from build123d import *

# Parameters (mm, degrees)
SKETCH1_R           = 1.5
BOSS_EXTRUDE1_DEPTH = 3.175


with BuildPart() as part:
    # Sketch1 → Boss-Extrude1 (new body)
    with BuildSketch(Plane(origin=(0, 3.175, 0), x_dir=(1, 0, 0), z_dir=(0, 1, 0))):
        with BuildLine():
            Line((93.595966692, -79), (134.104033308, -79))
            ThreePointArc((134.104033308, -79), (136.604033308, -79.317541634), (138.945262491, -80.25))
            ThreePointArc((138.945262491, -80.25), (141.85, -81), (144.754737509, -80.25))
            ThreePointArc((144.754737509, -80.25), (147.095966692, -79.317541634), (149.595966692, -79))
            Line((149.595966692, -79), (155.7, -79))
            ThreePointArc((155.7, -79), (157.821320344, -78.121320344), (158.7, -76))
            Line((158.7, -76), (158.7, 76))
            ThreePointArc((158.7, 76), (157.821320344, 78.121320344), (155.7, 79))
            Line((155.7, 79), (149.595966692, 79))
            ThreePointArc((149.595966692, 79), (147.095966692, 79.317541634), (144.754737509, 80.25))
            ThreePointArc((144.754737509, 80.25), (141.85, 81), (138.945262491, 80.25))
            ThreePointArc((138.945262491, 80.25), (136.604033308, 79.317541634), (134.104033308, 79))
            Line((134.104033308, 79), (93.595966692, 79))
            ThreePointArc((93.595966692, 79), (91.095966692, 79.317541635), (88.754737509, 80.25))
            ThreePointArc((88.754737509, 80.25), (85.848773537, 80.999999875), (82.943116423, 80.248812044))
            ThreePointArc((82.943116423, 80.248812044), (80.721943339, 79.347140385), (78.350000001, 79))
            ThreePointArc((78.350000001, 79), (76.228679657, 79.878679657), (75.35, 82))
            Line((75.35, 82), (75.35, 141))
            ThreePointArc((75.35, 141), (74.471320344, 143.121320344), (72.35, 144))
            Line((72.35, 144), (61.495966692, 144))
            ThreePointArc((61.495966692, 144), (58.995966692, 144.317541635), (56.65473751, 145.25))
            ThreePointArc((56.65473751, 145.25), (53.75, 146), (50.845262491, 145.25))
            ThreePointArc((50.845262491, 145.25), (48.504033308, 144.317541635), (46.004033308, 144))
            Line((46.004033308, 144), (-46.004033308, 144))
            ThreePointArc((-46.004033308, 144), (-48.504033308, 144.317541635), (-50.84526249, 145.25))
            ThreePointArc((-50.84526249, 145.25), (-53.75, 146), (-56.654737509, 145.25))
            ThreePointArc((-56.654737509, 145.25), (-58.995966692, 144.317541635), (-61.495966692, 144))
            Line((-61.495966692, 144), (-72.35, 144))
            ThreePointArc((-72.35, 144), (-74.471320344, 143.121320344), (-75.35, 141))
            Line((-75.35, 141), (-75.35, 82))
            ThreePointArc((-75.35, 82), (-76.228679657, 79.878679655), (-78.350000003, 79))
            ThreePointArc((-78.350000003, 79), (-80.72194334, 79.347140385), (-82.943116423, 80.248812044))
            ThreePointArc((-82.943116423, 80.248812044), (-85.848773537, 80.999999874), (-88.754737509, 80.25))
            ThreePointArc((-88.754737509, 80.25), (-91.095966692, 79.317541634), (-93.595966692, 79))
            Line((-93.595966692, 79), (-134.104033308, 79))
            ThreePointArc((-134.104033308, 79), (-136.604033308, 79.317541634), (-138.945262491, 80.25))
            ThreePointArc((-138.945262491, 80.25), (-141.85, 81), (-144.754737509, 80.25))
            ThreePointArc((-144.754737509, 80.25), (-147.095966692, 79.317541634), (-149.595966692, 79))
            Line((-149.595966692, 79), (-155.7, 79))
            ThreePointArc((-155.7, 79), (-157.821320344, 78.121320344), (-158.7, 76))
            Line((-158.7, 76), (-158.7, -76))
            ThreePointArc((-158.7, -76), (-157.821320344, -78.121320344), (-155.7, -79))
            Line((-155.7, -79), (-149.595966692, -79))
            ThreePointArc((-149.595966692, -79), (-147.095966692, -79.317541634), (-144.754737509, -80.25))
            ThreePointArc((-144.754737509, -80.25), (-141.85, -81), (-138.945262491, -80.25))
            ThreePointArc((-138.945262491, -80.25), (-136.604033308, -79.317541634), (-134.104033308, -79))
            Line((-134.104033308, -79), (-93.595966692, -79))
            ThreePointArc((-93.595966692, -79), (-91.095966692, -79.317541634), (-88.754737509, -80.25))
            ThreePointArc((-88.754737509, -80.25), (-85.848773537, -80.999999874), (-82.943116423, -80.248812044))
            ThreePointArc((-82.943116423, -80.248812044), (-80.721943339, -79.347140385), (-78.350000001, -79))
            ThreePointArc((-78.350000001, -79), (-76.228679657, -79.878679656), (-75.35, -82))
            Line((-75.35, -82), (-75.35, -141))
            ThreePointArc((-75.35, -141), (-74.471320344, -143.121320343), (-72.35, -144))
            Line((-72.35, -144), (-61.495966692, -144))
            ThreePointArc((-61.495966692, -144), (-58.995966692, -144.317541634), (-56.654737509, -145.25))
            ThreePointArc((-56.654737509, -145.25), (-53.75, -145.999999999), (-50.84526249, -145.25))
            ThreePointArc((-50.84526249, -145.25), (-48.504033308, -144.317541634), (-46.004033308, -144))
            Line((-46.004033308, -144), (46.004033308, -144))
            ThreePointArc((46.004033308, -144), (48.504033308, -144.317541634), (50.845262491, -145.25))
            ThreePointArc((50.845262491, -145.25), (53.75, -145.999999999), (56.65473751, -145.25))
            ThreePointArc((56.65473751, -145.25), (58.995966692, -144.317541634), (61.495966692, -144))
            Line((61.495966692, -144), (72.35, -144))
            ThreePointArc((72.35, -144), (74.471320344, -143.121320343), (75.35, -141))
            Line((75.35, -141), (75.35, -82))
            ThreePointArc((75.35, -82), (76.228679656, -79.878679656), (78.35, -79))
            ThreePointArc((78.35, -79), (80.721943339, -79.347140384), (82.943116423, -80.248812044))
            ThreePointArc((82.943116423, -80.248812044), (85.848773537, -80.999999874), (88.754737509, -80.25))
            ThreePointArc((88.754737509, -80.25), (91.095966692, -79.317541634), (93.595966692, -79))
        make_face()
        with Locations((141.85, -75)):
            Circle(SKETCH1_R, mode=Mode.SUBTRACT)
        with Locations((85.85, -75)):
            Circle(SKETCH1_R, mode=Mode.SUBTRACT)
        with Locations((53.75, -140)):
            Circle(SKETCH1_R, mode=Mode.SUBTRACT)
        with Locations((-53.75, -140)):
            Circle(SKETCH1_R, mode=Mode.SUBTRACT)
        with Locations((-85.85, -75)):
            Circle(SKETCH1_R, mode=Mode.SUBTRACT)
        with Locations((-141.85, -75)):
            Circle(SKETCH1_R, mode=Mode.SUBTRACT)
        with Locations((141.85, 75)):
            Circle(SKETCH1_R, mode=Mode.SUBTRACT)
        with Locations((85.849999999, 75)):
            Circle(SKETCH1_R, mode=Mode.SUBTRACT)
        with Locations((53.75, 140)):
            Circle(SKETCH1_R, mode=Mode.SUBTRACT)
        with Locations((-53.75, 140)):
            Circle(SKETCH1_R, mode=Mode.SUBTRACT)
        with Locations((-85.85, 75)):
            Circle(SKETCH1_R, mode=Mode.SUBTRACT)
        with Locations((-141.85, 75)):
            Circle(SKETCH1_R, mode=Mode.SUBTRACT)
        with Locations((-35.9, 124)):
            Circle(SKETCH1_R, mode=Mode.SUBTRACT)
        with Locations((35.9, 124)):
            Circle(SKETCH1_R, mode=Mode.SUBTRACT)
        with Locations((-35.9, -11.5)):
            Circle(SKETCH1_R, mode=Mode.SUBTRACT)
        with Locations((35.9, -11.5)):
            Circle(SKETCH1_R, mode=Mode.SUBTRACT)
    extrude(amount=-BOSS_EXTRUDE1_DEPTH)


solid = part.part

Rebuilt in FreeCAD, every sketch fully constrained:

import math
import FreeCAD as App
import Part
import Sketcher

doc = App.newDocument("Part")
body = doc.addObject("PartDesign::Body", "Body")

# Sketch on XZ plane
sketch1 = body.newObject("Sketcher::SketchObject", "Sketch")
sketch1.AttachmentSupport = (doc.getObject("XZ_Plane"), [""])
sketch1.MapMode = "FlatFace"
sketch1.AttachmentOffset = App.Placement(App.Vector(0, 0, -3.175), App.Rotation())
sketch1.addGeometry([
    Part.LineSegment(App.Vector(93.6, 79, 0), App.Vector(134.1, 79, 0)),  # 0
    Part.ArcOfCircle(Part.Circle(App.Vector(134.1, 89, 0), App.Vector(0, 0, 1), 10), math.radians(-90), math.radians(-61)),  # 1
    Part.ArcOfCircle(Part.Circle(App.Vector(141.8, 75, 0), App.Vector(0, 0, 1), 6), math.radians(61), math.radians(119)),  # 2
    Part.ArcOfCircle(Part.Circle(App.Vector(149.6, 89, 0), App.Vector(0, 0, 1), 10), math.radians(-119), math.radians(-90)),  # 3
    Part.LineSegment(App.Vector(149.6, 79, 0), App.Vector(155.7, 79, 0)),  # 4
    Part.ArcOfCircle(Part.Circle(App.Vector(155.7, 76, 0), App.Vector(0, 0, 1), 3), math.radians(0), math.radians(90)),  # 5
    Part.LineSegment(App.Vector(158.7, 76, 0), App.Vector(158.7, -76, 0)),  # 6
    Part.ArcOfCircle(Part.Circle(App.Vector(155.7, -76, 0), App.Vector(0, 0, 1), 3), math.radians(-90), math.radians(0)),  # 7
    Part.LineSegment(App.Vector(155.7, -79, 0), App.Vector(149.6, -79, 0)),  # 8
    Part.ArcOfCircle(Part.Circle(App.Vector(149.6, -89, 0), App.Vector(0, 0, 1), 10), math.radians(90), math.radians(119)),  # 9
    Part.ArcOfCircle(Part.Circle(App.Vector(141.8, -75, 0), App.Vector(0, 0, 1), 6), math.radians(-119), math.radians(-61)),  # 10
    Part.ArcOfCircle(Part.Circle(App.Vector(134.1, -89, 0), App.Vector(0, 0, 1), 10), math.radians(61), math.radians(90)),  # 11
    Part.LineSegment(App.Vector(134.1, -79, 0), App.Vector(93.6, -79, 0)),  # 12
    Part.ArcOfCircle(Part.Circle(App.Vector(93.6, -89, 0), App.Vector(0, 0, 1), 10), math.radians(90), math.radians(119)),  # 13
    Part.ArcOfCircle(Part.Circle(App.Vector(85.8, -75, 0), App.Vector(0, 0, 1), 6), math.radians(-119), math.radians(-61)),  # 14
    Part.ArcOfCircle(Part.Circle(App.Vector(78.1, -89, 0), App.Vector(0, 0, 1), 10), math.radians(61), math.radians(89)),  # 15
    Part.ArcOfCircle(Part.Circle(App.Vector(78.4, -82, 0), App.Vector(0, 0, 1), 3), math.radians(90), math.radians(180)),  # 16
    Part.LineSegment(App.Vector(75.3, -82, 0), App.Vector(75.3, -141, 0)),  # 17
    Part.ArcOfCircle(Part.Circle(App.Vector(72.4, -141, 0), App.Vector(0, 0, 1), 3), math.radians(-90), math.radians(0)),  # 18
    Part.LineSegment(App.Vector(72.3, -144, 0), App.Vector(61.5, -144, 0)),  # 19
    Part.ArcOfCircle(Part.Circle(App.Vector(61.5, -154, 0), App.Vector(0, 0, 1), 10), math.radians(90), math.radians(119)),  # 20
    Part.ArcOfCircle(Part.Circle(App.Vector(53.8, -140, 0), App.Vector(0, 0, 1), 6), math.radians(-119), math.radians(-61)),  # 21
    Part.ArcOfCircle(Part.Circle(App.Vector(46, -154, 0), App.Vector(0, 0, 1), 10), math.radians(61), math.radians(90)),  # 22
    Part.LineSegment(App.Vector(46, -144, 0), App.Vector(-46, -144, 0)),  # 23
    Part.ArcOfCircle(Part.Circle(App.Vector(-46, -154, 0), App.Vector(0, 0, 1), 10), math.radians(90), math.radians(119)),  # 24
    Part.ArcOfCircle(Part.Circle(App.Vector(-53.8, -140, 0), App.Vector(0, 0, 1), 6), math.radians(-119), math.radians(-61)),  # 25
    Part.ArcOfCircle(Part.Circle(App.Vector(-61.5, -154, 0), App.Vector(0, 0, 1), 10), math.radians(61), math.radians(90)),  # 26
    Part.LineSegment(App.Vector(-61.5, -144, 0), App.Vector(-72.3, -144, 0)),  # 27
    Part.ArcOfCircle(Part.Circle(App.Vector(-72.4, -141, 0), App.Vector(0, 0, 1), 3), math.radians(180), math.radians(270)),  # 28
    Part.LineSegment(App.Vector(-75.3, -141, 0), App.Vector(-75.3, -82, 0)),  # 29
    Part.ArcOfCircle(Part.Circle(App.Vector(-78.3, -82, 0), App.Vector(0, 0, 1), 3), math.radians(0), math.radians(90)),  # 30
    Part.ArcOfCircle(Part.Circle(App.Vector(-78.1, -89, 0), App.Vector(0, 0, 1), 10), math.radians(91), math.radians(119)),  # 31
    Part.ArcOfCircle(Part.Circle(App.Vector(-85.8, -75, 0), App.Vector(0, 0, 1), 6), math.radians(-119), math.radians(-61)),  # 32
    Part.ArcOfCircle(Part.Circle(App.Vector(-93.6, -89, 0), App.Vector(0, 0, 1), 10), math.radians(61), math.radians(90)),  # 33
    Part.LineSegment(App.Vector(-93.6, -79, 0), App.Vector(-134.1, -79, 0)),  # 34
    Part.ArcOfCircle(Part.Circle(App.Vector(-134.1, -89, 0), App.Vector(0, 0, 1), 10), math.radians(90), math.radians(119)),  # 35
    Part.ArcOfCircle(Part.Circle(App.Vector(-141.8, -75, 0), App.Vector(0, 0, 1), 6), math.radians(-119), math.radians(-61)),  # 36
    Part.ArcOfCircle(Part.Circle(App.Vector(-149.6, -89, 0), App.Vector(0, 0, 1), 10), math.radians(61), math.radians(90)),  # 37
    Part.LineSegment(App.Vector(-149.6, -79, 0), App.Vector(-155.7, -79, 0)),  # 38
    Part.ArcOfCircle(Part.Circle(App.Vector(-155.7, -76, 0), App.Vector(0, 0, 1), 3), math.radians(180), math.radians(270)),  # 39
    Part.LineSegment(App.Vector(-158.7, -76, 0), App.Vector(-158.7, 76, 0)),  # 40
    Part.ArcOfCircle(Part.Circle(App.Vector(-155.7, 76, 0), App.Vector(0, 0, 1), 3), math.radians(90), math.radians(180)),  # 41
    Part.LineSegment(App.Vector(-155.7, 79, 0), App.Vector(-149.6, 79, 0)),  # 42
    Part.ArcOfCircle(Part.Circle(App.Vector(-149.6, 89, 0), App.Vector(0, 0, 1), 10), math.radians(-90), math.radians(-61)),  # 43
    Part.ArcOfCircle(Part.Circle(App.Vector(-141.8, 75, 0), App.Vector(0, 0, 1), 6), math.radians(61), math.radians(119)),  # 44
    Part.ArcOfCircle(Part.Circle(App.Vector(-134.1, 89, 0), App.Vector(0, 0, 1), 10), math.radians(-119), math.radians(-90)),  # 45
    Part.LineSegment(App.Vector(-134.1, 79, 0), App.Vector(-93.6, 79, 0)),  # 46
    Part.ArcOfCircle(Part.Circle(App.Vector(-93.6, 89, 0), App.Vector(0, 0, 1), 10), math.radians(-90), math.radians(-61)),  # 47
    Part.ArcOfCircle(Part.Circle(App.Vector(-85.8, 75, 0), App.Vector(0, 0, 1), 6), math.radians(61), math.radians(119)),  # 48
    Part.ArcOfCircle(Part.Circle(App.Vector(-78.1, 89, 0), App.Vector(0, 0, 1), 10), math.radians(-119), math.radians(-91)),  # 49
    Part.ArcOfCircle(Part.Circle(App.Vector(-78.3, 82, 0), App.Vector(0, 0, 1), 3), math.radians(-90), math.radians(0)),  # 50
    Part.LineSegment(App.Vector(-75.3, 82, 0), App.Vector(-75.3, 141, 0)),  # 51
    Part.ArcOfCircle(Part.Circle(App.Vector(-72.3, 141, 0), App.Vector(0, 0, 1), 3), math.radians(90), math.radians(180)),  # 52
    Part.LineSegment(App.Vector(-72.3, 144, 0), App.Vector(-61.5, 144, 0)),  # 53
    Part.ArcOfCircle(Part.Circle(App.Vector(-61.5, 154, 0), App.Vector(0, 0, 1), 10), math.radians(-90), math.radians(-61)),  # 54
    Part.ArcOfCircle(Part.Circle(App.Vector(-53.8, 140, 0), App.Vector(0, 0, 1), 6), math.radians(61), math.radians(119)),  # 55
    Part.ArcOfCircle(Part.Circle(App.Vector(-46, 154, 0), App.Vector(0, 0, 1), 10), math.radians(-119), math.radians(-90)),  # 56
    Part.LineSegment(App.Vector(-46, 144, 0), App.Vector(46, 144, 0)),  # 57
    Part.ArcOfCircle(Part.Circle(App.Vector(46, 154, 0), App.Vector(0, 0, 1), 10), math.radians(-90), math.radians(-61)),  # 58
    Part.ArcOfCircle(Part.Circle(App.Vector(53.8, 140, 0), App.Vector(0, 0, 1), 6), math.radians(61), math.radians(119)),  # 59
    Part.ArcOfCircle(Part.Circle(App.Vector(61.5, 154, 0), App.Vector(0, 0, 1), 10), math.radians(-119), math.radians(-90)),  # 60
    Part.LineSegment(App.Vector(61.5, 144, 0), App.Vector(72.3, 144, 0)),  # 61
    Part.ArcOfCircle(Part.Circle(App.Vector(72.3, 141, 0), App.Vector(0, 0, 1), 3), math.radians(0), math.radians(90)),  # 62
    Part.LineSegment(App.Vector(75.3, 141, 0), App.Vector(75.3, 82, 0)),  # 63
    Part.ArcOfCircle(Part.Circle(App.Vector(78.3, 82, 0), App.Vector(0, 0, 1), 3), math.radians(180), math.radians(270)),  # 64
    Part.ArcOfCircle(Part.Circle(App.Vector(78.1, 89, 0), App.Vector(0, 0, 1), 10), math.radians(-89), math.radians(-61)),  # 65
    Part.ArcOfCircle(Part.Circle(App.Vector(85.8, 75, 0), App.Vector(0, 0, 1), 6), math.radians(61), math.radians(119)),  # 66
    Part.ArcOfCircle(Part.Circle(App.Vector(93.6, 89, 0), App.Vector(0, 0, 1), 10), math.radians(-119), math.radians(-90)),  # 67
    Part.Circle(App.Vector(-141.8, 75, 0), App.Vector(0, 0, 1), 1.5),  # 68
    Part.Circle(App.Vector(-85.8, 75, 0), App.Vector(0, 0, 1), 1.5),  # 69
    Part.Circle(App.Vector(-53.8, 140, 0), App.Vector(0, 0, 1), 1.5),  # 70
    Part.Circle(App.Vector(-35.9, 11.5, 0), App.Vector(0, 0, 1), 1.5),  # 71
    Part.Circle(App.Vector(53.8, 140, 0), App.Vector(0, 0, 1), 1.5),  # 72
    Part.Circle(App.Vector(85.8, 75, 0), App.Vector(0, 0, 1), 1.5),  # 73
    Part.Circle(App.Vector(141.8, 75, 0), App.Vector(0, 0, 1), 1.5),  # 74
    Part.Circle(App.Vector(35.9, 11.5, 0), App.Vector(0, 0, 1), 1.5),  # 75
    Part.Circle(App.Vector(-141.8, -75, 0), App.Vector(0, 0, 1), 1.5),  # 76
    Part.Circle(App.Vector(-85.8, -75, 0), App.Vector(0, 0, 1), 1.5),  # 77
    Part.Circle(App.Vector(-35.9, -124, 0), App.Vector(0, 0, 1), 1.5),  # 78
    Part.Circle(App.Vector(-53.8, -140, 0), App.Vector(0, 0, 1), 1.5),  # 79
    Part.Circle(App.Vector(35.9, -124, 0), App.Vector(0, 0, 1), 1.5),  # 80
    Part.Circle(App.Vector(53.8, -140, 0), App.Vector(0, 0, 1), 1.5),  # 81
    Part.Circle(App.Vector(85.8, -75, 0), App.Vector(0, 0, 1), 1.5),  # 82
    Part.Circle(App.Vector(141.8, -75, 0), App.Vector(0, 0, 1), 1.5),  # 83
], False)
sketch1.addConstraint([
    Sketcher.Constraint("Tangent", 0, 2, 1, 1),
    Sketcher.Constraint("Tangent", 1, 2, 2, 2),
    Sketcher.Constraint("Tangent", 2, 1, 3, 1),
    Sketcher.Constraint("Tangent", 3, 2, 4, 1),
    Sketcher.Constraint("Tangent", 4, 2, 5, 2),
    Sketcher.Constraint("Tangent", 5, 1, 6, 1),
    Sketcher.Constraint("Tangent", 6, 2, 7, 2),
    Sketcher.Constraint("Tangent", 7, 1, 8, 1),
    Sketcher.Constraint("Tangent", 8, 2, 9, 1),
    Sketcher.Constraint("Tangent", 9, 2, 10, 2),
    Sketcher.Constraint("Tangent", 10, 1, 11, 1),
    Sketcher.Constraint("Tangent", 11, 2, 12, 1),
    Sketcher.Constraint("Tangent", 12, 2, 13, 1),
    Sketcher.Constraint("Tangent", 13, 2, 14, 2),
    Sketcher.Constraint("Tangent", 14, 1, 15, 1),
    Sketcher.Constraint("Coincident", 15, 2, 16, 1),
    Sketcher.Constraint("Tangent", 16, 2, 17, 1),
    Sketcher.Constraint("Tangent", 17, 2, 18, 2),
    Sketcher.Constraint("Tangent", 18, 1, 19, 1),
    Sketcher.Constraint("Tangent", 19, 2, 20, 1),
    Sketcher.Constraint("Tangent", 20, 2, 21, 2),
    Sketcher.Constraint("Tangent", 21, 1, 22, 1),
    Sketcher.Constraint("Tangent", 22, 2, 23, 1),
    Sketcher.Constraint("Tangent", 23, 2, 24, 1),
    Sketcher.Constraint("Tangent", 24, 2, 25, 2),
    Sketcher.Constraint("Tangent", 25, 1, 26, 1),
    Sketcher.Constraint("Tangent", 26, 2, 27, 1),
    Sketcher.Constraint("Tangent", 27, 2, 28, 2),
    Sketcher.Constraint("Tangent", 28, 1, 29, 1),
    Sketcher.Constraint("Tangent", 29, 2, 30, 1),
    Sketcher.Constraint("Coincident", 30, 2, 31, 1),
    Sketcher.Constraint("Tangent", 31, 2, 32, 2),
    Sketcher.Constraint("Tangent", 32, 1, 33, 1),
    Sketcher.Constraint("Tangent", 33, 2, 34, 1),
    Sketcher.Constraint("Tangent", 34, 2, 35, 1),
    Sketcher.Constraint("Tangent", 35, 2, 36, 2),
    Sketcher.Constraint("Tangent", 36, 1, 37, 1),
    Sketcher.Constraint("Tangent", 37, 2, 38, 1),
    Sketcher.Constraint("Tangent", 38, 2, 39, 2),
    Sketcher.Constraint("Tangent", 39, 1, 40, 1),
    Sketcher.Constraint("Tangent", 40, 2, 41, 2),
    Sketcher.Constraint("Tangent", 41, 1, 42, 1),
    Sketcher.Constraint("Tangent", 42, 2, 43, 1),
    Sketcher.Constraint("Tangent", 43, 2, 44, 2),
    Sketcher.Constraint("Tangent", 44, 1, 45, 1),
    Sketcher.Constraint("Tangent", 45, 2, 46, 1),
    Sketcher.Constraint("Tangent", 46, 2, 47, 1),
    Sketcher.Constraint("Tangent", 47, 2, 48, 2),
    Sketcher.Constraint("Tangent", 48, 1, 49, 1),
    Sketcher.Constraint("Coincident", 49, 2, 50, 1),
    Sketcher.Constraint("Tangent", 50, 2, 51, 1),
    Sketcher.Constraint("Tangent", 51, 2, 52, 2),
    Sketcher.Constraint("Tangent", 52, 1, 53, 1),
    Sketcher.Constraint("Tangent", 53, 2, 54, 1),
    Sketcher.Constraint("Tangent", 54, 2, 55, 2),
    Sketcher.Constraint("Tangent", 55, 1, 56, 1),
    Sketcher.Constraint("Tangent", 56, 2, 57, 1),
    Sketcher.Constraint("Tangent", 57, 2, 58, 1),
    Sketcher.Constraint("Tangent", 58, 2, 59, 2),
    Sketcher.Constraint("Tangent", 59, 1, 60, 1),
    Sketcher.Constraint("Tangent", 60, 2, 61, 1),
    Sketcher.Constraint("Tangent", 61, 2, 62, 2),
    Sketcher.Constraint("Tangent", 62, 1, 63, 1),
    Sketcher.Constraint("Tangent", 63, 2, 64, 1),
    Sketcher.Constraint("Coincident", 64, 2, 65, 1),
    Sketcher.Constraint("Tangent", 65, 2, 66, 2),
    Sketcher.Constraint("Tangent", 66, 1, 67, 1),
    Sketcher.Constraint("Tangent", 67, 2, 0, 1),
    Sketcher.Constraint("Horizontal", 0),
    Sketcher.Constraint("Horizontal", 4),
    Sketcher.Constraint("Vertical", 6),
    Sketcher.Constraint("Horizontal", 8),
    Sketcher.Constraint("Horizontal", 12),
    Sketcher.Constraint("Vertical", 17),
    Sketcher.Constraint("Horizontal", 19),
    Sketcher.Constraint("Horizontal", 23),
    Sketcher.Constraint("Horizontal", 27),
    Sketcher.Constraint("Vertical", 29),
    Sketcher.Constraint("Horizontal", 34),
    Sketcher.Constraint("Horizontal", 38),
    Sketcher.Constraint("Vertical", 40),
    Sketcher.Constraint("Horizontal", 42),
    Sketcher.Constraint("Horizontal", 46),
    Sketcher.Constraint("Vertical", 51),
    Sketcher.Constraint("Horizontal", 53),
    Sketcher.Constraint("Horizontal", 57),
    Sketcher.Constraint("Horizontal", 61),
    Sketcher.Constraint("Vertical", 63),
    Sketcher.Constraint("Coincident", 68, 3, 44, 3),
    Sketcher.Constraint("Coincident", 69, 3, 48, 3),
    Sketcher.Constraint("Coincident", 70, 3, 55, 3),
    Sketcher.Constraint("Coincident", 72, 3, 59, 3),
    Sketcher.Constraint("Coincident", 73, 3, 66, 3),
    Sketcher.Constraint("Coincident", 74, 3, 2, 3),
    Sketcher.Constraint("Coincident", 76, 3, 36, 3),
    Sketcher.Constraint("Coincident", 77, 3, 32, 3),
    Sketcher.Constraint("Coincident", 79, 3, 25, 3),
    Sketcher.Constraint("Coincident", 81, 3, 21, 3),
    Sketcher.Constraint("Coincident", 82, 3, 14, 3),
    Sketcher.Constraint("Coincident", 83, 3, 10, 3),
    Sketcher.Constraint("Equal", 1, 3),
    Sketcher.Constraint("Equal", 5, 7),
    Sketcher.Constraint("Equal", 3, 9),
    Sketcher.Constraint("Equal", 2, 10),
    Sketcher.Constraint("Equal", 9, 11),
    Sketcher.Constraint("Equal", 11, 13),
    Sketcher.Constraint("Equal", 10, 14),
    Sketcher.Constraint("Equal", 13, 15),
    Sketcher.Constraint("Equal", 7, 16),
    Sketcher.Constraint("Equal", 16, 18),
    Sketcher.Constraint("Equal", 15, 20),
    Sketcher.Constraint("Equal", 14, 21),
    Sketcher.Constraint("Equal", 20, 22),
    Sketcher.Constraint("Equal", 22, 24),
    Sketcher.Constraint("Equal", 21, 25),
    Sketcher.Constraint("Equal", 24, 26),
    Sketcher.Constraint("Equal", 18, 28),
    Sketcher.Constraint("Equal", 28, 30),
    Sketcher.Constraint("Equal", 26, 31),
    Sketcher.Constraint("Equal", 25, 32),
    Sketcher.Constraint("Equal", 31, 33),
    Sketcher.Constraint("Equal", 33, 35),
    Sketcher.Constraint("Equal", 32, 36),
    Sketcher.Constraint("Equal", 35, 37),
    Sketcher.Constraint("Equal", 30, 39),
    Sketcher.Constraint("Equal", 39, 41),
    Sketcher.Constraint("Equal", 37, 43),
    Sketcher.Constraint("Equal", 36, 44),
    Sketcher.Constraint("Equal", 43, 45),
    Sketcher.Constraint("Equal", 45, 47),
    Sketcher.Constraint("Equal", 44, 48),
    Sketcher.Constraint("Equal", 47, 49),
    Sketcher.Constraint("Equal", 41, 50),
    Sketcher.Constraint("Equal", 50, 52),
    Sketcher.Constraint("Equal", 49, 54),
    Sketcher.Constraint("Equal", 48, 55),
    Sketcher.Constraint("Equal", 54, 56),
    Sketcher.Constraint("Equal", 56, 58),
    Sketcher.Constraint("Equal", 55, 59),
    Sketcher.Constraint("Equal", 58, 60),
    Sketcher.Constraint("Equal", 52, 62),
    Sketcher.Constraint("Equal", 62, 64),
    Sketcher.Constraint("Equal", 60, 65),
    Sketcher.Constraint("Equal", 59, 66),
    Sketcher.Constraint("Equal", 65, 67),
    Sketcher.Constraint("Equal", 68, 69),
    Sketcher.Constraint("Equal", 69, 70),
    Sketcher.Constraint("Equal", 70, 71),
    Sketcher.Constraint("Equal", 71, 72),
    Sketcher.Constraint("Equal", 72, 73),
    Sketcher.Constraint("Equal", 73, 74),
    Sketcher.Constraint("Equal", 74, 75),
    Sketcher.Constraint("Equal", 75, 76),
    Sketcher.Constraint("Equal", 76, 77),
    Sketcher.Constraint("Equal", 77, 78),
    Sketcher.Constraint("Equal", 78, 79),
    Sketcher.Constraint("Equal", 79, 80),
    Sketcher.Constraint("Equal", 80, 81),
    Sketcher.Constraint("Equal", 81, 82),
    Sketcher.Constraint("Equal", 82, 83),
    Sketcher.Constraint("Symmetric", 1, 3, 35, 3, -1, 1),
    Sketcher.Constraint("Symmetric", 3, 3, 37, 3, -1, 1),
    Sketcher.Constraint("Symmetric", 7, 3, 41, 3, -1, 1),
    Sketcher.Constraint("Symmetric", 10, 3, 44, 3, -1, 1),
    Sketcher.Constraint("Symmetric", 13, 3, 47, 3, -1, 1),
    Sketcher.Constraint("Symmetric", 15, 3, 49, 3, -1, 1),
    Sketcher.Constraint("Symmetric", 16, 3, 50, 3, -1, 1),
    Sketcher.Constraint("Symmetric", 20, 3, 54, 3, -1, 1),
    Sketcher.Constraint("Symmetric", 22, 3, 56, 3, -1, 1),
    Sketcher.Constraint("Symmetric", 25, 3, 59, 3, -1, 1),
    Sketcher.Constraint("Symmetric", 28, 3, 62, 3, -1, 1),
    Sketcher.Constraint("Symmetric", 31, 3, 65, 3, -1, 1),
    Sketcher.Constraint("Symmetric", 21, 3, 25, 3, -2),
    Sketcher.Constraint("Symmetric", 18, 3, 28, 3, -2),
    Sketcher.Constraint("Symmetric", 15, 3, 31, 3, -2),
    Sketcher.Constraint("Symmetric", 13, 3, 33, 3, -2),
    Sketcher.Constraint("Symmetric", 10, 3, 36, 3, -2),
    Sketcher.Constraint("Symmetric", 71, 3, 75, 3, -2),
    Sketcher.Constraint("Symmetric", 78, 3, 80, 3, -2),
    Sketcher.Constraint("Horizontal", 1, 3, 3, 3),
    Sketcher.Constraint("Horizontal", 9, 3, 11, 3),
    Sketcher.Constraint("Horizontal", 10, 3, 14, 3),
    Sketcher.Constraint("Horizontal", 20, 3, 22, 3),
    Sketcher.Constraint("Horizontal", 16, 3, 30, 3),
    Sketcher.Constraint("Horizontal", 50, 3, 64, 3),
    Sketcher.Constraint("Horizontal", 48, 3, 66, 3),
    Sketcher.Constraint("Horizontal", 12, 2, 15, 2),
    Sketcher.Constraint("Vertical", 71, 3, 78, 3),
    Sketcher.Constraint("Vertical", 64, 3, 15, 2),
    Sketcher.Constraint("Diameter", 68, 3.0),
    Sketcher.Constraint("Radius", 1, 10.0),
    Sketcher.Constraint("Radius", 2, 6.0),
    Sketcher.Constraint("Radius", 5, 3.0),
    Sketcher.Constraint("DistanceY", 6, 2, 6, 1, 152.0),
    Sketcher.Constraint("DistanceY", 17, 2, 17, 1, 59.0),
    Sketcher.Constraint("DistanceY", -1, 1, 2, 3, 75.0),
    Sketcher.Constraint("DistanceY", 21, 3, -1, 1, 140.0),
    Sketcher.Constraint("DistanceY", 78, 3, -1, 1, 124.0),
    Sketcher.Constraint("DistanceX", -1, 1, 5, 3, 155.7),
    Sketcher.Constraint("DistanceX", 71, 3, -1, 1, 35.9),
    Sketcher.Constraint("DistanceY", -1, 1, 71, 3, 11.5),
    Sketcher.Constraint("DistanceX", -1, 1, 2, 3, 141.85),
    Sketcher.Constraint("DistanceX", -1, 1, 14, 3, 85.85),
    Sketcher.Constraint("DistanceX", -1, 1, 16, 3, 78.35),
    Sketcher.Constraint("DistanceX", -1, 1, 21, 3, 53.75),
])
pad1 = body.newObject("PartDesign::Pad", "Pad")
pad1.Profile = sketch1
pad1.Length = 3.175

doc.recompute()
